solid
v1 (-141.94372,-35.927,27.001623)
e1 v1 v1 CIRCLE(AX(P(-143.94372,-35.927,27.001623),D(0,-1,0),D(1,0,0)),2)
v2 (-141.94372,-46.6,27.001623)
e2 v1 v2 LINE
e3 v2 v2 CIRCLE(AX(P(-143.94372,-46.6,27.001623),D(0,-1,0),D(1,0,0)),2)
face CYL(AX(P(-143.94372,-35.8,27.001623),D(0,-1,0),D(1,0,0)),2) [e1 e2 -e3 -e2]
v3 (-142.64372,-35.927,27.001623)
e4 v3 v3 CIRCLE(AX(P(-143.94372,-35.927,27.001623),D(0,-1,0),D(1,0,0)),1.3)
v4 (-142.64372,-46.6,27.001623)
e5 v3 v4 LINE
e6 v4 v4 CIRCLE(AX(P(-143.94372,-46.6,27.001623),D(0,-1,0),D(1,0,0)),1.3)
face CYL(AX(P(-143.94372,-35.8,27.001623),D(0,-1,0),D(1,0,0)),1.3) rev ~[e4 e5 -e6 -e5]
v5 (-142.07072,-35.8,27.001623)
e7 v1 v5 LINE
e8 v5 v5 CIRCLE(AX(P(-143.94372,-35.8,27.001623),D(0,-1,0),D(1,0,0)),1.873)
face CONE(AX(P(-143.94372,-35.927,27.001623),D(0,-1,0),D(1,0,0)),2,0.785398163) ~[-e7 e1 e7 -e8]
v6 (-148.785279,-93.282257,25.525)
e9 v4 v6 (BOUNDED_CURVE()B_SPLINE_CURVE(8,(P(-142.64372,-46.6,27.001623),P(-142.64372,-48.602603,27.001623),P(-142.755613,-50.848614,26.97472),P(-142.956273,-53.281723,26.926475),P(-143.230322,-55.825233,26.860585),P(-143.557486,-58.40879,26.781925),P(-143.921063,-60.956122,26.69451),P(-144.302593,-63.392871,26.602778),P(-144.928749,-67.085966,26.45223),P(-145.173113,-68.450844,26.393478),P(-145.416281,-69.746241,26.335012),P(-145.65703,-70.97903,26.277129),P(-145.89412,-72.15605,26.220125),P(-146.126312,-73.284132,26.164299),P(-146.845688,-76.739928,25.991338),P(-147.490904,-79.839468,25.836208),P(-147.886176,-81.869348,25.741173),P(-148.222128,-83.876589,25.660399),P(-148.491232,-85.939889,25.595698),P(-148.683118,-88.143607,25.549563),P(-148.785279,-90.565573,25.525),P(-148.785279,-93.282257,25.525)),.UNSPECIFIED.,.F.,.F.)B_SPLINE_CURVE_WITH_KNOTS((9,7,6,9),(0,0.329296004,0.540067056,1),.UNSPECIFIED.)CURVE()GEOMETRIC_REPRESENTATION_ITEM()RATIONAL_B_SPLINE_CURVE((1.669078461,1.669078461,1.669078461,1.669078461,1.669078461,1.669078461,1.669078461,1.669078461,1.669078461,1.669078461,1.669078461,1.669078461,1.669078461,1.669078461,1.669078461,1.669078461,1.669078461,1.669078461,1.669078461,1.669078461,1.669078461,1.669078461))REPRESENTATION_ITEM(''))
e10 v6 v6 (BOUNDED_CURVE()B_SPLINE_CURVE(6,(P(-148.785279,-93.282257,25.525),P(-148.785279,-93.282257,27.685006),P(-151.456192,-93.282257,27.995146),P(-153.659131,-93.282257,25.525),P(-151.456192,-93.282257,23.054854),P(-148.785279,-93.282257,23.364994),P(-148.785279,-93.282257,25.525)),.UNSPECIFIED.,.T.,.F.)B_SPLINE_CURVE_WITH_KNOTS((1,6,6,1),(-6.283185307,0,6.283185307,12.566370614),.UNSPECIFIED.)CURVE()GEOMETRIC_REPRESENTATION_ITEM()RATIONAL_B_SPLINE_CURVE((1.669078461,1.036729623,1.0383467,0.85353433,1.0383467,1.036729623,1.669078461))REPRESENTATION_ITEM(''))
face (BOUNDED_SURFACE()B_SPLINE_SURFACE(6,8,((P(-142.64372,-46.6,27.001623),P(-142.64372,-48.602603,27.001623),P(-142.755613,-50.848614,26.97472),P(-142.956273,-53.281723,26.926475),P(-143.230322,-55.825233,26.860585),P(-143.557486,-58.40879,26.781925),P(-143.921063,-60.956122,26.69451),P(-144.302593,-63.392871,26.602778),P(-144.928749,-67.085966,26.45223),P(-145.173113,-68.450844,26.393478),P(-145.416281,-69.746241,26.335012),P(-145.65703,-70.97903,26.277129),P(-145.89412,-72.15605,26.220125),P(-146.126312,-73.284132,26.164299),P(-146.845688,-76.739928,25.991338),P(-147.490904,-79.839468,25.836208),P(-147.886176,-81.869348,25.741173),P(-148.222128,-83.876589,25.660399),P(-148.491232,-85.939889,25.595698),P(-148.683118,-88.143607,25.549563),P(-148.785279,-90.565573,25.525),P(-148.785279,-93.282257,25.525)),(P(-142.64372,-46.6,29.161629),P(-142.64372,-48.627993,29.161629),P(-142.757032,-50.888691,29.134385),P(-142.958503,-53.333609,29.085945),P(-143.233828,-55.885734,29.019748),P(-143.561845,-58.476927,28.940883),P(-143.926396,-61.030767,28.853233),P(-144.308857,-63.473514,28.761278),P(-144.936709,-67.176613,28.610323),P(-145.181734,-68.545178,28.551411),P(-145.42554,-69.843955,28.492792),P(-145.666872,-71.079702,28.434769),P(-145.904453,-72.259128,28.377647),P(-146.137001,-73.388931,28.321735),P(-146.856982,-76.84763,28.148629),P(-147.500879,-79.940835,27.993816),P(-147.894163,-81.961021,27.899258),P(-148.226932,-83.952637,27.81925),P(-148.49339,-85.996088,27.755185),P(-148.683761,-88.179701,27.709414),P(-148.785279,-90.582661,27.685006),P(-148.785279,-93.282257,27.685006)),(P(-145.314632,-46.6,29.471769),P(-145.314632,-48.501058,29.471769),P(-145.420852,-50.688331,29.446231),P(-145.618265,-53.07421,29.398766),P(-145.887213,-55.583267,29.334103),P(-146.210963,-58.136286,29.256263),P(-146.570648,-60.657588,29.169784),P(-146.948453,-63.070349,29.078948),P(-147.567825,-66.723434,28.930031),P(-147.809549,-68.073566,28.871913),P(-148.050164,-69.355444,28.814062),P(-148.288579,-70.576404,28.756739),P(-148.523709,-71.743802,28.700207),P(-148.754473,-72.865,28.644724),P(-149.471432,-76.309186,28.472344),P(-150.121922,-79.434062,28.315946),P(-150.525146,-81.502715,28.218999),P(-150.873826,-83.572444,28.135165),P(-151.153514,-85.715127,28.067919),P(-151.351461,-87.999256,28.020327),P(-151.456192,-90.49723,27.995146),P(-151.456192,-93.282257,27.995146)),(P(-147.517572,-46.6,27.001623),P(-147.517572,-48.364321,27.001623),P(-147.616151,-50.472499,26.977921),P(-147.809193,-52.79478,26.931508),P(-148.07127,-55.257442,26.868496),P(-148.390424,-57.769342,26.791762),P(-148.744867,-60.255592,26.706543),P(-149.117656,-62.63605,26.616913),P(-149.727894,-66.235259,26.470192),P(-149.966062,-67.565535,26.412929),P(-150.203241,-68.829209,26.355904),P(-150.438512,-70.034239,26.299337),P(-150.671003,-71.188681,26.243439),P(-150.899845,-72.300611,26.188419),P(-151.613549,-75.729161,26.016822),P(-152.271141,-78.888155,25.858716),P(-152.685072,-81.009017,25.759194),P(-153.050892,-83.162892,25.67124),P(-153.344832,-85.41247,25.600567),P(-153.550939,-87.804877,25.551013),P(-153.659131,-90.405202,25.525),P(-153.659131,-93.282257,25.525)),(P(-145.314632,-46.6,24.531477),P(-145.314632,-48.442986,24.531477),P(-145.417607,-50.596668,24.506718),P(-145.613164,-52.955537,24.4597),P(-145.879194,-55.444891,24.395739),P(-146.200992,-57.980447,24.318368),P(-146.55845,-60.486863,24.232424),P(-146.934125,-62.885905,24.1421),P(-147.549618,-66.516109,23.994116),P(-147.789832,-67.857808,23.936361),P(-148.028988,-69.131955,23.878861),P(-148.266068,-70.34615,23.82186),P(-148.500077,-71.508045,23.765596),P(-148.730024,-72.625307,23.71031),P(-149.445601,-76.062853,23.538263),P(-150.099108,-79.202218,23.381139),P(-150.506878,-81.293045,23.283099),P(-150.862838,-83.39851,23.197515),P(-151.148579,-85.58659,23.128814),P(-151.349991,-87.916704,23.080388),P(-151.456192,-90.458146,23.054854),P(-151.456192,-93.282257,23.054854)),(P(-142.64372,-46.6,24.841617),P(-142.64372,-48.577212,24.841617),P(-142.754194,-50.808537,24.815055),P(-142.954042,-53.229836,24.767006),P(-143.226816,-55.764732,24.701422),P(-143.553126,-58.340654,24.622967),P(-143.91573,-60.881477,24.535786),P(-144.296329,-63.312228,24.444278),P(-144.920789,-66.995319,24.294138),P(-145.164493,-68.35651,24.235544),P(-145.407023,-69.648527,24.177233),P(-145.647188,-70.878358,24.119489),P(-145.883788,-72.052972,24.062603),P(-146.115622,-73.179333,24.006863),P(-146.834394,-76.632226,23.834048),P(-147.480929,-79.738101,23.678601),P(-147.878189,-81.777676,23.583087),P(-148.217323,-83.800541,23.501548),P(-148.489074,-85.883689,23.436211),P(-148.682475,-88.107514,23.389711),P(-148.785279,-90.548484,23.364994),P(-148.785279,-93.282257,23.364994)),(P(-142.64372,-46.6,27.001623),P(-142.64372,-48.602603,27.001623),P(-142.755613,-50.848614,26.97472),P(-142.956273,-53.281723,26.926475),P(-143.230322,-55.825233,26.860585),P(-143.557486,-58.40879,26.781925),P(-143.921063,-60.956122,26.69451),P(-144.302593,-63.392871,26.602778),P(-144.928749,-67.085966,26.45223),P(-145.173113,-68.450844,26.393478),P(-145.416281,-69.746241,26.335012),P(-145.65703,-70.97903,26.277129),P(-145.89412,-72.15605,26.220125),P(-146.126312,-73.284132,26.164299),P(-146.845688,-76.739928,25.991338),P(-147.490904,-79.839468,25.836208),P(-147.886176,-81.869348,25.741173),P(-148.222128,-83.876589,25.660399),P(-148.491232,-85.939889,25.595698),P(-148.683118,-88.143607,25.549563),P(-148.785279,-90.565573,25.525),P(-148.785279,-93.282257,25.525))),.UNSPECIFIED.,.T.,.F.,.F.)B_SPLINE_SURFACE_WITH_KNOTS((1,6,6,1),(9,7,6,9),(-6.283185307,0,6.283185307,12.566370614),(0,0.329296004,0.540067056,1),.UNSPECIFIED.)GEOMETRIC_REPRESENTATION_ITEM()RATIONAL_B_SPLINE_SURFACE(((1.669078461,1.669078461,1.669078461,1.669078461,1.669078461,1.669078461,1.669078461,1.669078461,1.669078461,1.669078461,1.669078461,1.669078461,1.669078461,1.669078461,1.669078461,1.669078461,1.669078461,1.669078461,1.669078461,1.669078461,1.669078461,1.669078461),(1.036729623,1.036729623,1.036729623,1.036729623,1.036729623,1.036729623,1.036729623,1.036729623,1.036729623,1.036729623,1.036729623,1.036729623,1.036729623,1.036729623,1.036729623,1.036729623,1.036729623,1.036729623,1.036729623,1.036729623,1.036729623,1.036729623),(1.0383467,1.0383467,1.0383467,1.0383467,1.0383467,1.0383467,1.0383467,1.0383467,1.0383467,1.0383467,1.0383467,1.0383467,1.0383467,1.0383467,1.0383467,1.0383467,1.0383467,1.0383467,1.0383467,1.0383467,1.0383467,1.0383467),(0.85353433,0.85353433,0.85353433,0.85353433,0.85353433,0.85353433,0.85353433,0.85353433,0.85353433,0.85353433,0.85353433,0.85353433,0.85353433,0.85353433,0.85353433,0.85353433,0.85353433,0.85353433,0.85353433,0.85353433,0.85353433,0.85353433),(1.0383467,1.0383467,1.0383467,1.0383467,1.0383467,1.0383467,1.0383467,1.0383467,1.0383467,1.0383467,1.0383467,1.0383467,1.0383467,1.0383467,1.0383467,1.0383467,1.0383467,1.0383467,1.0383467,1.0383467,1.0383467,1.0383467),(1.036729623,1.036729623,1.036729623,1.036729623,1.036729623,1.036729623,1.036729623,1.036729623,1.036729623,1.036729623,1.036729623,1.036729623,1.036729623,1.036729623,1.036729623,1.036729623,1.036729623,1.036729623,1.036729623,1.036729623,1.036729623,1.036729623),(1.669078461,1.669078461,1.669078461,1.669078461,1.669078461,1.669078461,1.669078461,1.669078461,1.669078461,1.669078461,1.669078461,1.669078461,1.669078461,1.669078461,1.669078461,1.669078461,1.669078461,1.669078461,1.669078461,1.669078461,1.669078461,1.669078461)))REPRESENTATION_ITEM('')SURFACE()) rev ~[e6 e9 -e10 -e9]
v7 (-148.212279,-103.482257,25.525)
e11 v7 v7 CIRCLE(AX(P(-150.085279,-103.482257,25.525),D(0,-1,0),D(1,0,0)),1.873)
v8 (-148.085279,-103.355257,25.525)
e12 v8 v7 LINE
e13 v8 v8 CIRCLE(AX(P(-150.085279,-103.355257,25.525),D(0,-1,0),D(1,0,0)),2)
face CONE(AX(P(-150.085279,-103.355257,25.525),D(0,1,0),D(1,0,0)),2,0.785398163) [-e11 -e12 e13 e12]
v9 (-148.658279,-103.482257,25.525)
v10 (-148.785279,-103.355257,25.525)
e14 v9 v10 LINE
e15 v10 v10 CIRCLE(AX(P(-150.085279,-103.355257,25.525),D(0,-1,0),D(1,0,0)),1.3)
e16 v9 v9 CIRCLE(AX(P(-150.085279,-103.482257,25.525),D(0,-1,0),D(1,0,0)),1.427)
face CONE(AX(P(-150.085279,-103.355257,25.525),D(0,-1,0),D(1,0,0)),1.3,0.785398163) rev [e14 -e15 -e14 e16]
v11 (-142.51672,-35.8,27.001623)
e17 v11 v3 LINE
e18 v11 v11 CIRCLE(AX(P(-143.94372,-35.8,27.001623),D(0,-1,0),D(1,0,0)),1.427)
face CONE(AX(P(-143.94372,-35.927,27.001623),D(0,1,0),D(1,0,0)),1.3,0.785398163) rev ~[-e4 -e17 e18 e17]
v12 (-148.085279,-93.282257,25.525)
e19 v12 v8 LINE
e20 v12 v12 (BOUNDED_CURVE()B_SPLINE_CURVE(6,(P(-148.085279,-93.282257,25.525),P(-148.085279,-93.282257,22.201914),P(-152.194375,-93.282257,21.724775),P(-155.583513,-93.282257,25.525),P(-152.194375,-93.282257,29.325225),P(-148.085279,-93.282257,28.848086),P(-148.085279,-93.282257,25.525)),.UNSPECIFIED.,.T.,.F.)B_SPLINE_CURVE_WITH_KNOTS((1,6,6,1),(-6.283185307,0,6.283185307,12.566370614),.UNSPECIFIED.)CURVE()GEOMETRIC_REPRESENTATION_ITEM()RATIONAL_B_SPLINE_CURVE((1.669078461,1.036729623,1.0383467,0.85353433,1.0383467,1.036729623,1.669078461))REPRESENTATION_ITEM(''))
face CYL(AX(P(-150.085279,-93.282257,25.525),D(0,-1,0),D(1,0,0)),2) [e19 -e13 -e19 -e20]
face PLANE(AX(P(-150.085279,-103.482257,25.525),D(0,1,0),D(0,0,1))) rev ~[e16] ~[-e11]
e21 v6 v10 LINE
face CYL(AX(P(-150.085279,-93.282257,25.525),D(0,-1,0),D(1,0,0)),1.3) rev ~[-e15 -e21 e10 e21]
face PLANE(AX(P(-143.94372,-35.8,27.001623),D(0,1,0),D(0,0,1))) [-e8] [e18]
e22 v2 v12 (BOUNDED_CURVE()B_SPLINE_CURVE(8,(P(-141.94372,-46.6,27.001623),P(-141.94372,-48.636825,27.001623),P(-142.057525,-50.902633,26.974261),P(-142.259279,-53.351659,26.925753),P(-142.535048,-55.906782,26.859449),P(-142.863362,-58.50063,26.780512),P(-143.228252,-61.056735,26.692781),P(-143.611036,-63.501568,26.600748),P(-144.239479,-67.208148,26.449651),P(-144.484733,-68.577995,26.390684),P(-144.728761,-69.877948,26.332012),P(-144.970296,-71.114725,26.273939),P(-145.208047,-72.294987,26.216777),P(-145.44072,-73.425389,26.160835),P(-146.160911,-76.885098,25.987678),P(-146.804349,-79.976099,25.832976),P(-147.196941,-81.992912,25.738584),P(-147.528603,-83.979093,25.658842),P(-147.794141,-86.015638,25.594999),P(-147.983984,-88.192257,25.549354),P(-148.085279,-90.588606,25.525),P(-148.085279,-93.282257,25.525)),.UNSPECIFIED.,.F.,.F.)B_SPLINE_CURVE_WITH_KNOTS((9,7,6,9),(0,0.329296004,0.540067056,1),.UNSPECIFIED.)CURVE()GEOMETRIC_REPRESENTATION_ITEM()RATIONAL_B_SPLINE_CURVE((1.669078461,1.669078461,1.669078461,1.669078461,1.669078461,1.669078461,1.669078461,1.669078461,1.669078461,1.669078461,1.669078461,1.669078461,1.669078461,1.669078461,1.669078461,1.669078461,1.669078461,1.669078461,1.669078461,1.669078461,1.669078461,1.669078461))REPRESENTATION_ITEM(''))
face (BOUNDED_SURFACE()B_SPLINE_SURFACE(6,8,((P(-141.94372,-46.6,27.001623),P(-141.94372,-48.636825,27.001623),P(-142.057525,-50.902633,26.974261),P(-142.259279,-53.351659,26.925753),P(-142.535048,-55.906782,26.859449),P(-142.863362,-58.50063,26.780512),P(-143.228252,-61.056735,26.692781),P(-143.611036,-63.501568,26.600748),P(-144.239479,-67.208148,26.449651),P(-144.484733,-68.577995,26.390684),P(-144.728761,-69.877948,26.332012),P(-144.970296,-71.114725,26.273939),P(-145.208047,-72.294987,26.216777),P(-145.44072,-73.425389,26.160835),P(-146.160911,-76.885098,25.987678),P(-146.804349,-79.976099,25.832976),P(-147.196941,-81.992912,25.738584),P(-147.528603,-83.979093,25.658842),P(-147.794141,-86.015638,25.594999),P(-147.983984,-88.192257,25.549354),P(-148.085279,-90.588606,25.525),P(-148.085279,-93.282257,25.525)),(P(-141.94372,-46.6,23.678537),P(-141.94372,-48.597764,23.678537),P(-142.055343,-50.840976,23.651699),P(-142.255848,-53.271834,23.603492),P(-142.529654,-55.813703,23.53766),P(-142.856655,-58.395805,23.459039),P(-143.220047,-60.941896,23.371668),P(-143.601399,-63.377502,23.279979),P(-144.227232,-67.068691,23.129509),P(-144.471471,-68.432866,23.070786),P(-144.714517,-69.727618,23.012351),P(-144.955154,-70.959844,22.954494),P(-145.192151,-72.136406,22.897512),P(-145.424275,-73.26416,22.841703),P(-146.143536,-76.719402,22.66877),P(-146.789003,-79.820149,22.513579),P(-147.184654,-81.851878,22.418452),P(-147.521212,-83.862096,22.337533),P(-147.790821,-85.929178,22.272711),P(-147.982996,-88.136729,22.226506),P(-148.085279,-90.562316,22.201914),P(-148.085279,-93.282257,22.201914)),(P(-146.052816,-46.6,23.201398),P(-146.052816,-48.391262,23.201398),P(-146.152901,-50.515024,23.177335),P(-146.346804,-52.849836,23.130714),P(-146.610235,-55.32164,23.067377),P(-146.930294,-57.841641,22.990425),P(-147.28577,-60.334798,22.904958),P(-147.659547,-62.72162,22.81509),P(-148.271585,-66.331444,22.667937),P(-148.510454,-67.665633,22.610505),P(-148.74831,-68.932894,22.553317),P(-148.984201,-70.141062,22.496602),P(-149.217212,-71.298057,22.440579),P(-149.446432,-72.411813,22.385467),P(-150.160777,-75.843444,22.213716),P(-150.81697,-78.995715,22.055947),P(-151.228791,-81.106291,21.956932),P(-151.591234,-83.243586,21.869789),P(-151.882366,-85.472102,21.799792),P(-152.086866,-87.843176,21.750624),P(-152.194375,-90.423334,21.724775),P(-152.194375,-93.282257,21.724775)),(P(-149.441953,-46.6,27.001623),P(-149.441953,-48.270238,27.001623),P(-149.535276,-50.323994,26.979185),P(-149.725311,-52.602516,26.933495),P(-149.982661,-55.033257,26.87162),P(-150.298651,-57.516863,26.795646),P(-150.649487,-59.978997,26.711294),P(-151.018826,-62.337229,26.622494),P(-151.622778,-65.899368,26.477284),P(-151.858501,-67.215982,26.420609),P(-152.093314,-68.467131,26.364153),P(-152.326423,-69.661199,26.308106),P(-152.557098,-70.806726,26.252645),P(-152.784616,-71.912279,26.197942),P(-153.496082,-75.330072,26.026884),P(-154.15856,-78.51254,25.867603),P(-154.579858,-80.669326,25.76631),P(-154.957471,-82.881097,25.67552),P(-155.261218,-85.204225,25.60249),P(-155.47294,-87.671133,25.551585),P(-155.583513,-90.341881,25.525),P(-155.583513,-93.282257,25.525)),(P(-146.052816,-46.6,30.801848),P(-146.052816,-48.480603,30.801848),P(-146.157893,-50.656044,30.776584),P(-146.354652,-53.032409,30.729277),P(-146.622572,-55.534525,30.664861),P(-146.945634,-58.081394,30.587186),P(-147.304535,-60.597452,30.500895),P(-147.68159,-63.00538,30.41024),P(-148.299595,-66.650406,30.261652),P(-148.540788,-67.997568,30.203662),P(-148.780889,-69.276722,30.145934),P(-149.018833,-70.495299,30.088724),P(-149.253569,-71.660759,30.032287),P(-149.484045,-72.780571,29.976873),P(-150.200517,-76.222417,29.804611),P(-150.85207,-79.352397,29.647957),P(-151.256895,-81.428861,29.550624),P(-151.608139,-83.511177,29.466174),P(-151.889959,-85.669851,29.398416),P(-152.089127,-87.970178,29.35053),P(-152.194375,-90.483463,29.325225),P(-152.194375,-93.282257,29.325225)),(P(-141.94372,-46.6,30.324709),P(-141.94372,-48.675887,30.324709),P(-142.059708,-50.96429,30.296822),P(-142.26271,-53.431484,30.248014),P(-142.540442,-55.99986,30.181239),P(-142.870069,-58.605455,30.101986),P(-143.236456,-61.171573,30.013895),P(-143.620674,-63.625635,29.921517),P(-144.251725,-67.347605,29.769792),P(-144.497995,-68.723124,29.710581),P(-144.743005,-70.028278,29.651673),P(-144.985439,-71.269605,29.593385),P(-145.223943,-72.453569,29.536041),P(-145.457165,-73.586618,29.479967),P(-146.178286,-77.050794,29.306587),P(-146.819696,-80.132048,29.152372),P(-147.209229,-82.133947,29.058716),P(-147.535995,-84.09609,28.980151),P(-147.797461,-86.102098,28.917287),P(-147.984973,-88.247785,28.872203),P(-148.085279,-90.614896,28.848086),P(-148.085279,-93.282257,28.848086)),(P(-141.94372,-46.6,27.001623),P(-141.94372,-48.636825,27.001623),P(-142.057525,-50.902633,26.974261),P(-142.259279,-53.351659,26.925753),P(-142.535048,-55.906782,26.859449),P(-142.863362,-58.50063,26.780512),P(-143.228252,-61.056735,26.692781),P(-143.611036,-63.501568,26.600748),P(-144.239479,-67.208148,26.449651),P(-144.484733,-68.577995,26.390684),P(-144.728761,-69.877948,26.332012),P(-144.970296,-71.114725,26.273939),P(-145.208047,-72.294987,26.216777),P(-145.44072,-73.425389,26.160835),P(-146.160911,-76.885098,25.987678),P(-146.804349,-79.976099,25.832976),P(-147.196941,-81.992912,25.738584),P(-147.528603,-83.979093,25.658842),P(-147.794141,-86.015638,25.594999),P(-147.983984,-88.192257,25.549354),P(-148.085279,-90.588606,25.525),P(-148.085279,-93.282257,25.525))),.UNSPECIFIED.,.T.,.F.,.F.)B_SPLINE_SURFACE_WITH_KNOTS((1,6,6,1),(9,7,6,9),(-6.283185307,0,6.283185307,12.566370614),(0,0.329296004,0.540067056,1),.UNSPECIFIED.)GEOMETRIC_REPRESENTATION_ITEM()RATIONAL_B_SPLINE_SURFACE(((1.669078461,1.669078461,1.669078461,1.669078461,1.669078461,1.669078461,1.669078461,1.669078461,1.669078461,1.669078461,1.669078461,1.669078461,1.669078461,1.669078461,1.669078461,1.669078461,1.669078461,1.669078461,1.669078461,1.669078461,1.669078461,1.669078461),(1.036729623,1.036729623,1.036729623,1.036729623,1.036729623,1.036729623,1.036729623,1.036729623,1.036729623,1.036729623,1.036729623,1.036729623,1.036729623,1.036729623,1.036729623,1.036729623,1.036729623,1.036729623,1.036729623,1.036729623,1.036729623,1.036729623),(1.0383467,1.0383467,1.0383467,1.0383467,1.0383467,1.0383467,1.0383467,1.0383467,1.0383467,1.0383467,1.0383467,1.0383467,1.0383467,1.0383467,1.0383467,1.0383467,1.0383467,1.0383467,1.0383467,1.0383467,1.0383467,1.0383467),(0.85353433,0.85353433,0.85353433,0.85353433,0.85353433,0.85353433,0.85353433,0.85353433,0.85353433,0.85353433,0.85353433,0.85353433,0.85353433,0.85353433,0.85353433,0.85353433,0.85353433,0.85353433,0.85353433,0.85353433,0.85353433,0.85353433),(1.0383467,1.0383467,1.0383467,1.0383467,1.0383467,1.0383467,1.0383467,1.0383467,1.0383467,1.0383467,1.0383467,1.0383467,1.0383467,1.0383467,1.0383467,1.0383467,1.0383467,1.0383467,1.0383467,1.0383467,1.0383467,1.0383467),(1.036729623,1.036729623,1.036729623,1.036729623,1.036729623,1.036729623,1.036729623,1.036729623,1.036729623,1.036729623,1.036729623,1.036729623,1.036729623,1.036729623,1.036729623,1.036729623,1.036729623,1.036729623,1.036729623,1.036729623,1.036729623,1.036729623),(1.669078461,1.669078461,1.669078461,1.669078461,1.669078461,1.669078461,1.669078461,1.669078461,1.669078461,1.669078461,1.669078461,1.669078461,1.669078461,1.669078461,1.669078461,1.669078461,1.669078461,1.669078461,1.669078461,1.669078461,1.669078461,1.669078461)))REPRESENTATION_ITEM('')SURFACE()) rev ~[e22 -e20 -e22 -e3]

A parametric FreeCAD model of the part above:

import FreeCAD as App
import Part
import Sketcher

V = App.Vector


def edges_at(feature, points):
    """Names of the edges that pass closest to the given points."""
    edges = feature.Shape.Edges
    near = lambda p: min(range(len(edges)), key=lambda i: edges[i].distToShape(Part.Vertex(*p))[0])
    return sorted({f"Edge{near(p) + 1}" for p in points})

doc = App.newDocument("Part")
body = doc.addObject("PartDesign::Body", "Body")

# Sketch on XZ plane
sketch1 = body.newObject("Sketcher::SketchObject", "Sketch")
sketch1.AttachmentSupport = (doc.getObject("XZ_Plane"), [""])
sketch1.MapMode = "FlatFace"
sketch1.AttachmentOffset = App.Placement(V(0, 0, 95.382257), App.Rotation())
sketch1.addGeometry(Part.Circle(V(-150.1, 25.5, 0), V(0, 0, 1), 2), False)
sketch1.addGeometry(Part.Circle(V(-150.1, 25.5, 0), V(0, 0, 1), 1.3), False)
sketch1.addConstraint(Sketcher.Constraint("Coincident", 1, 3, 0, 3))
sketch1.addConstraint(Sketcher.Constraint("Diameter", 0, 4.0))
sketch1.addConstraint(Sketcher.Constraint("Diameter", 1, 2.6))
sketch1.addConstraint(Sketcher.Constraint("DistanceY", -1, 1, 0, 3, 25.525))
sketch1.addConstraint(Sketcher.Constraint("DistanceX", 0, 3, -1, 1, 150.085279))

# Sketch on an angled plane
sketch2 = body.newObject("Sketcher::SketchObject", "Sketch001")
sketch2.Placement = App.Placement(V(-14.003514, 0, 58.243313), App.Rotation(V(-0.972292064, 0, -0.233769423), V(0, 1.000000001, 0), V(0.233769423, 0, -0.972292064), "ZXY"))
sketch2.addGeometry(Part.LineSegment(V(133.643182, -35.8, 0), V(133.643182, -46.6, 0)), False)
sketch2.addGeometry(Part.BSplineCurve([V(133.643182, -46.6, 0), V(133.643182, -51.770789, 0), V(136.801472, -75.131744, 0), V(139.959761, -82.55153, 0), V(139.959761, -93.282257, 0)], [4, 1, 4], [0, 0.329296004, 1], False, 3, [1, 1, 1, 1, 1], False), False)
sketch2.addGeometry(Part.LineSegment(V(139.959761, -93.282257, 0), V(139.959761, -103.482257, 0)), False)
sketch2.addConstraint(Sketcher.Constraint("Block", 1))
sketch2.addConstraint(Sketcher.Constraint("Coincident", 0, 2, 1, 1))
sketch2.addConstraint(Sketcher.Constraint("Coincident", 1, 2, 2, 1))
sketch2.addConstraint(Sketcher.Constraint("Vertical", 0))
sketch2.addConstraint(Sketcher.Constraint("Vertical", 2))
sketch2.addConstraint(Sketcher.Constraint("DistanceY", 0, 2, 0, 1, 10.8))
sketch2.addConstraint(Sketcher.Constraint("DistanceY", 2, 2, 2, 1, 10.2))
doc.recompute()

additivepipe = body.newObject("PartDesign::AdditivePipe", "AdditivePipe")
additivepipe.Profile = sketch1
additivepipe.Spine = (sketch2, ["Edge1", "Edge2", "Edge3"])
doc.recompute()

chamfer = body.newObject("PartDesign::Chamfer", "Chamfer")
chamfer.Base = (additivepipe, edges_at(additivepipe, [
    (-145.244, -35.8, 27.002),
    (-145.944, -35.8, 27.002),
    (-151.385, -103.482, 25.525),
    (-152.085, -103.482, 25.525),
]))
chamfer.Size = 0.127

doc.recompute()
